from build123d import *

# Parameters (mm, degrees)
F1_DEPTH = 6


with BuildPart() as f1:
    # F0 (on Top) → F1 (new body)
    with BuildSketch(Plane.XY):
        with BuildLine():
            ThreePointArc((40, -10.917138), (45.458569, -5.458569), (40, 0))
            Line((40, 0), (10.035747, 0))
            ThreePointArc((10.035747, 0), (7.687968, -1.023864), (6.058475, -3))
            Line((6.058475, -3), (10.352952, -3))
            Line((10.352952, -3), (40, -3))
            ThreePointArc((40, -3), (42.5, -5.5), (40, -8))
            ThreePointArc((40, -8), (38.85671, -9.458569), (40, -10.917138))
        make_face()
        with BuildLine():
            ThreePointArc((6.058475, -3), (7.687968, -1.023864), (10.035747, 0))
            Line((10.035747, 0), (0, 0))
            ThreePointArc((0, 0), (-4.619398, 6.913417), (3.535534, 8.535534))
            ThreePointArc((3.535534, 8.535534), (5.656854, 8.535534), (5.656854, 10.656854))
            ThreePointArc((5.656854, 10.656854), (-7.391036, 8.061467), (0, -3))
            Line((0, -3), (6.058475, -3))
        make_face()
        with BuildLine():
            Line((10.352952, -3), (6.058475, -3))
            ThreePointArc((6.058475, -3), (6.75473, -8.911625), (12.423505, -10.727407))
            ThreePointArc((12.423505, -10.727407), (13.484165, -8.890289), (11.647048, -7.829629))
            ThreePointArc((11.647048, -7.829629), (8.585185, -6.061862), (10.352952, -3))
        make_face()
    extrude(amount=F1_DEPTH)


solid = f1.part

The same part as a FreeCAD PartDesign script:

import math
import FreeCAD as App
import Part
import Sketcher
from FreeCAD import Vector

doc = App.newDocument("Part")
params = doc.addObject("Spreadsheet::Sheet", "Params")
for row, (alias, value) in enumerate([
    ("sketch1_radius", "5 mm"),
    ("sketch1_radius2", "8 mm"),
    ("sketch1_radius3", "5.5 mm"),
    ("sketch1_width", "40 mm"),
    ("pad1_length", "6 mm"),
], start=1):
    params.set(f"A{row}", alias)
    params.set(f"B{row}", "=" + value)
    params.setAlias(f"B{row}", alias)

body = doc.addObject("PartDesign::Body", "Body")

sketch1 = body.newObject("Sketcher::SketchObject", "Sketch")
sketch1.AttachmentSupport = (doc.getObject("XY_Plane"), [""])
sketch1.MapMode = "FlatFace"
sketch1.addGeometry([
    Part.ArcOfCircle(Part.Circle(Vector(40, -5.5, 0), Vector(0, 0, 1), 5.5), math.radians(-90), math.radians(90)),
    Part.LineSegment(Vector(40, 0, 0), Vector(0, 0, 0)),
    Part.ArcOfCircle(Part.Circle(Vector(0, 5, 0), Vector(0, 0, 1), 5), math.radians(45), math.radians(270)),
    Part.ArcOfCircle(Part.Circle(Vector(4.6, 9.6, 0), Vector(0, 0, 1), 1.5), math.radians(-135), math.radians(45)),
    Part.ArcOfCircle(Part.Circle(Vector(0, 5, 0), Vector(0, 0, 1), 8), math.radians(45), math.radians(270)),
    Part.LineSegment(Vector(0, -3, 0), Vector(6.1, -3, 0)),
    Part.ArcOfCircle(Part.Circle(Vector(11, -5.4, 0), Vector(0, 0, 1), 5.5), math.radians(154), math.radians(285)),
    Part.ArcOfCircle(Part.Circle(Vector(12, -9.3, 0), Vector(0, 0, 1), 1.5), math.radians(-75), math.radians(105)),
    Part.ArcOfCircle(Part.Circle(Vector(11, -5.4, 0), Vector(0, 0, 1), 2.5), math.radians(105), math.radians(285)),
    Part.LineSegment(Vector(10.4, -3, 0), Vector(40, -3, 0)),
    Part.ArcOfCircle(Part.Circle(Vector(40, -5.5, 0), Vector(0, 0, 1), 2.5), math.radians(-90), math.radians(90)),
    Part.ArcOfCircle(Part.Circle(Vector(40.4, -9.5, 0), Vector(0, 0, 1), 1.5), math.radians(104), math.radians(256)),
], False)
sketch1.addConstraint([
    Sketcher.Constraint("Tangent", 0, 2, 1, 1),
    Sketcher.Constraint("Tangent", 1, 2, 2, 2),
    Sketcher.Constraint("Tangent", 2, 1, 3, 1),
    Sketcher.Constraint("Tangent", 3, 2, 4, 1),
    Sketcher.Constraint("Tangent", 4, 2, 5, 1),
    Sketcher.Constraint("Coincident", 5, 2, 6, 1),
    Sketcher.Constraint("Tangent", 6, 2, 7, 1),
    Sketcher.Constraint("Tangent", 7, 2, 8, 2),
    Sketcher.Constraint("Coincident", 8, 1, 9, 1),
    Sketcher.Constraint("Tangent", 9, 2, 10, 2),
    Sketcher.Constraint("Coincident", 10, 1, 11, 1),
    Sketcher.Constraint("Coincident", 11, 2, 0, 1),
    Sketcher.Constraint("Horizontal", 1),
    Sketcher.Constraint("Horizontal", 5),
    Sketcher.Constraint("Horizontal", 9),
    Sketcher.Constraint("Coincident", 1, 2, -1, 1),
    Sketcher.Constraint("Coincident", 4, 3, 2, 3),
    Sketcher.Constraint("Coincident", 8, 3, 6, 3),
    Sketcher.Constraint("Equal", 3, 7),
    Sketcher.Constraint("Equal", 8, 10),
    Sketcher.Constraint("Horizontal", 5, 2, 8, 1),
    Sketcher.Constraint("Vertical", 0, 3, 10, 3),
    Sketcher.Constraint("Vertical", 9, 2, 10, 1),
    Sketcher.Constraint("Vertical", 10, 1, 11, 2),
    Sketcher.Constraint("Radius", 2, 5.0),
    Sketcher.Constraint("Radius", 4, 8.0),
    Sketcher.Constraint("Radius", 6, 5.5),
    Sketcher.Constraint("DistanceX", 1, 2, 1, 1, 40.0),
    Sketcher.Constraint("DistanceX", -1, 1, 6, 3, 11.0),
    Sketcher.Constraint("Radius", 0, 5.458569),
    Sketcher.Constraint("Radius", 11, 1.50204),
    Sketcher.Constraint("DistanceX", 5, 2, 7, 3, 5.976801),
    Sketcher.Constraint("DistanceX", 5, 1, 5, 2, 6.058475),
    Sketcher.Constraint("DistanceY", 6, 3, 3, 3, 15.011009),
])
sketch1.setExpression("Constraints[24]", "Params.sketch1_radius")
sketch1.setExpression("Constraints[25]", "Params.sketch1_radius2")
sketch1.setExpression("Constraints[26]", "Params.sketch1_radius3")
sketch1.setExpression("Constraints[27]", "Params.sketch1_width")
pad1 = body.newObject("PartDesign::Pad", "Pad")
pad1.Profile = sketch1
pad1.setExpression("Length", "Params.pad1_length")

doc.recompute()
